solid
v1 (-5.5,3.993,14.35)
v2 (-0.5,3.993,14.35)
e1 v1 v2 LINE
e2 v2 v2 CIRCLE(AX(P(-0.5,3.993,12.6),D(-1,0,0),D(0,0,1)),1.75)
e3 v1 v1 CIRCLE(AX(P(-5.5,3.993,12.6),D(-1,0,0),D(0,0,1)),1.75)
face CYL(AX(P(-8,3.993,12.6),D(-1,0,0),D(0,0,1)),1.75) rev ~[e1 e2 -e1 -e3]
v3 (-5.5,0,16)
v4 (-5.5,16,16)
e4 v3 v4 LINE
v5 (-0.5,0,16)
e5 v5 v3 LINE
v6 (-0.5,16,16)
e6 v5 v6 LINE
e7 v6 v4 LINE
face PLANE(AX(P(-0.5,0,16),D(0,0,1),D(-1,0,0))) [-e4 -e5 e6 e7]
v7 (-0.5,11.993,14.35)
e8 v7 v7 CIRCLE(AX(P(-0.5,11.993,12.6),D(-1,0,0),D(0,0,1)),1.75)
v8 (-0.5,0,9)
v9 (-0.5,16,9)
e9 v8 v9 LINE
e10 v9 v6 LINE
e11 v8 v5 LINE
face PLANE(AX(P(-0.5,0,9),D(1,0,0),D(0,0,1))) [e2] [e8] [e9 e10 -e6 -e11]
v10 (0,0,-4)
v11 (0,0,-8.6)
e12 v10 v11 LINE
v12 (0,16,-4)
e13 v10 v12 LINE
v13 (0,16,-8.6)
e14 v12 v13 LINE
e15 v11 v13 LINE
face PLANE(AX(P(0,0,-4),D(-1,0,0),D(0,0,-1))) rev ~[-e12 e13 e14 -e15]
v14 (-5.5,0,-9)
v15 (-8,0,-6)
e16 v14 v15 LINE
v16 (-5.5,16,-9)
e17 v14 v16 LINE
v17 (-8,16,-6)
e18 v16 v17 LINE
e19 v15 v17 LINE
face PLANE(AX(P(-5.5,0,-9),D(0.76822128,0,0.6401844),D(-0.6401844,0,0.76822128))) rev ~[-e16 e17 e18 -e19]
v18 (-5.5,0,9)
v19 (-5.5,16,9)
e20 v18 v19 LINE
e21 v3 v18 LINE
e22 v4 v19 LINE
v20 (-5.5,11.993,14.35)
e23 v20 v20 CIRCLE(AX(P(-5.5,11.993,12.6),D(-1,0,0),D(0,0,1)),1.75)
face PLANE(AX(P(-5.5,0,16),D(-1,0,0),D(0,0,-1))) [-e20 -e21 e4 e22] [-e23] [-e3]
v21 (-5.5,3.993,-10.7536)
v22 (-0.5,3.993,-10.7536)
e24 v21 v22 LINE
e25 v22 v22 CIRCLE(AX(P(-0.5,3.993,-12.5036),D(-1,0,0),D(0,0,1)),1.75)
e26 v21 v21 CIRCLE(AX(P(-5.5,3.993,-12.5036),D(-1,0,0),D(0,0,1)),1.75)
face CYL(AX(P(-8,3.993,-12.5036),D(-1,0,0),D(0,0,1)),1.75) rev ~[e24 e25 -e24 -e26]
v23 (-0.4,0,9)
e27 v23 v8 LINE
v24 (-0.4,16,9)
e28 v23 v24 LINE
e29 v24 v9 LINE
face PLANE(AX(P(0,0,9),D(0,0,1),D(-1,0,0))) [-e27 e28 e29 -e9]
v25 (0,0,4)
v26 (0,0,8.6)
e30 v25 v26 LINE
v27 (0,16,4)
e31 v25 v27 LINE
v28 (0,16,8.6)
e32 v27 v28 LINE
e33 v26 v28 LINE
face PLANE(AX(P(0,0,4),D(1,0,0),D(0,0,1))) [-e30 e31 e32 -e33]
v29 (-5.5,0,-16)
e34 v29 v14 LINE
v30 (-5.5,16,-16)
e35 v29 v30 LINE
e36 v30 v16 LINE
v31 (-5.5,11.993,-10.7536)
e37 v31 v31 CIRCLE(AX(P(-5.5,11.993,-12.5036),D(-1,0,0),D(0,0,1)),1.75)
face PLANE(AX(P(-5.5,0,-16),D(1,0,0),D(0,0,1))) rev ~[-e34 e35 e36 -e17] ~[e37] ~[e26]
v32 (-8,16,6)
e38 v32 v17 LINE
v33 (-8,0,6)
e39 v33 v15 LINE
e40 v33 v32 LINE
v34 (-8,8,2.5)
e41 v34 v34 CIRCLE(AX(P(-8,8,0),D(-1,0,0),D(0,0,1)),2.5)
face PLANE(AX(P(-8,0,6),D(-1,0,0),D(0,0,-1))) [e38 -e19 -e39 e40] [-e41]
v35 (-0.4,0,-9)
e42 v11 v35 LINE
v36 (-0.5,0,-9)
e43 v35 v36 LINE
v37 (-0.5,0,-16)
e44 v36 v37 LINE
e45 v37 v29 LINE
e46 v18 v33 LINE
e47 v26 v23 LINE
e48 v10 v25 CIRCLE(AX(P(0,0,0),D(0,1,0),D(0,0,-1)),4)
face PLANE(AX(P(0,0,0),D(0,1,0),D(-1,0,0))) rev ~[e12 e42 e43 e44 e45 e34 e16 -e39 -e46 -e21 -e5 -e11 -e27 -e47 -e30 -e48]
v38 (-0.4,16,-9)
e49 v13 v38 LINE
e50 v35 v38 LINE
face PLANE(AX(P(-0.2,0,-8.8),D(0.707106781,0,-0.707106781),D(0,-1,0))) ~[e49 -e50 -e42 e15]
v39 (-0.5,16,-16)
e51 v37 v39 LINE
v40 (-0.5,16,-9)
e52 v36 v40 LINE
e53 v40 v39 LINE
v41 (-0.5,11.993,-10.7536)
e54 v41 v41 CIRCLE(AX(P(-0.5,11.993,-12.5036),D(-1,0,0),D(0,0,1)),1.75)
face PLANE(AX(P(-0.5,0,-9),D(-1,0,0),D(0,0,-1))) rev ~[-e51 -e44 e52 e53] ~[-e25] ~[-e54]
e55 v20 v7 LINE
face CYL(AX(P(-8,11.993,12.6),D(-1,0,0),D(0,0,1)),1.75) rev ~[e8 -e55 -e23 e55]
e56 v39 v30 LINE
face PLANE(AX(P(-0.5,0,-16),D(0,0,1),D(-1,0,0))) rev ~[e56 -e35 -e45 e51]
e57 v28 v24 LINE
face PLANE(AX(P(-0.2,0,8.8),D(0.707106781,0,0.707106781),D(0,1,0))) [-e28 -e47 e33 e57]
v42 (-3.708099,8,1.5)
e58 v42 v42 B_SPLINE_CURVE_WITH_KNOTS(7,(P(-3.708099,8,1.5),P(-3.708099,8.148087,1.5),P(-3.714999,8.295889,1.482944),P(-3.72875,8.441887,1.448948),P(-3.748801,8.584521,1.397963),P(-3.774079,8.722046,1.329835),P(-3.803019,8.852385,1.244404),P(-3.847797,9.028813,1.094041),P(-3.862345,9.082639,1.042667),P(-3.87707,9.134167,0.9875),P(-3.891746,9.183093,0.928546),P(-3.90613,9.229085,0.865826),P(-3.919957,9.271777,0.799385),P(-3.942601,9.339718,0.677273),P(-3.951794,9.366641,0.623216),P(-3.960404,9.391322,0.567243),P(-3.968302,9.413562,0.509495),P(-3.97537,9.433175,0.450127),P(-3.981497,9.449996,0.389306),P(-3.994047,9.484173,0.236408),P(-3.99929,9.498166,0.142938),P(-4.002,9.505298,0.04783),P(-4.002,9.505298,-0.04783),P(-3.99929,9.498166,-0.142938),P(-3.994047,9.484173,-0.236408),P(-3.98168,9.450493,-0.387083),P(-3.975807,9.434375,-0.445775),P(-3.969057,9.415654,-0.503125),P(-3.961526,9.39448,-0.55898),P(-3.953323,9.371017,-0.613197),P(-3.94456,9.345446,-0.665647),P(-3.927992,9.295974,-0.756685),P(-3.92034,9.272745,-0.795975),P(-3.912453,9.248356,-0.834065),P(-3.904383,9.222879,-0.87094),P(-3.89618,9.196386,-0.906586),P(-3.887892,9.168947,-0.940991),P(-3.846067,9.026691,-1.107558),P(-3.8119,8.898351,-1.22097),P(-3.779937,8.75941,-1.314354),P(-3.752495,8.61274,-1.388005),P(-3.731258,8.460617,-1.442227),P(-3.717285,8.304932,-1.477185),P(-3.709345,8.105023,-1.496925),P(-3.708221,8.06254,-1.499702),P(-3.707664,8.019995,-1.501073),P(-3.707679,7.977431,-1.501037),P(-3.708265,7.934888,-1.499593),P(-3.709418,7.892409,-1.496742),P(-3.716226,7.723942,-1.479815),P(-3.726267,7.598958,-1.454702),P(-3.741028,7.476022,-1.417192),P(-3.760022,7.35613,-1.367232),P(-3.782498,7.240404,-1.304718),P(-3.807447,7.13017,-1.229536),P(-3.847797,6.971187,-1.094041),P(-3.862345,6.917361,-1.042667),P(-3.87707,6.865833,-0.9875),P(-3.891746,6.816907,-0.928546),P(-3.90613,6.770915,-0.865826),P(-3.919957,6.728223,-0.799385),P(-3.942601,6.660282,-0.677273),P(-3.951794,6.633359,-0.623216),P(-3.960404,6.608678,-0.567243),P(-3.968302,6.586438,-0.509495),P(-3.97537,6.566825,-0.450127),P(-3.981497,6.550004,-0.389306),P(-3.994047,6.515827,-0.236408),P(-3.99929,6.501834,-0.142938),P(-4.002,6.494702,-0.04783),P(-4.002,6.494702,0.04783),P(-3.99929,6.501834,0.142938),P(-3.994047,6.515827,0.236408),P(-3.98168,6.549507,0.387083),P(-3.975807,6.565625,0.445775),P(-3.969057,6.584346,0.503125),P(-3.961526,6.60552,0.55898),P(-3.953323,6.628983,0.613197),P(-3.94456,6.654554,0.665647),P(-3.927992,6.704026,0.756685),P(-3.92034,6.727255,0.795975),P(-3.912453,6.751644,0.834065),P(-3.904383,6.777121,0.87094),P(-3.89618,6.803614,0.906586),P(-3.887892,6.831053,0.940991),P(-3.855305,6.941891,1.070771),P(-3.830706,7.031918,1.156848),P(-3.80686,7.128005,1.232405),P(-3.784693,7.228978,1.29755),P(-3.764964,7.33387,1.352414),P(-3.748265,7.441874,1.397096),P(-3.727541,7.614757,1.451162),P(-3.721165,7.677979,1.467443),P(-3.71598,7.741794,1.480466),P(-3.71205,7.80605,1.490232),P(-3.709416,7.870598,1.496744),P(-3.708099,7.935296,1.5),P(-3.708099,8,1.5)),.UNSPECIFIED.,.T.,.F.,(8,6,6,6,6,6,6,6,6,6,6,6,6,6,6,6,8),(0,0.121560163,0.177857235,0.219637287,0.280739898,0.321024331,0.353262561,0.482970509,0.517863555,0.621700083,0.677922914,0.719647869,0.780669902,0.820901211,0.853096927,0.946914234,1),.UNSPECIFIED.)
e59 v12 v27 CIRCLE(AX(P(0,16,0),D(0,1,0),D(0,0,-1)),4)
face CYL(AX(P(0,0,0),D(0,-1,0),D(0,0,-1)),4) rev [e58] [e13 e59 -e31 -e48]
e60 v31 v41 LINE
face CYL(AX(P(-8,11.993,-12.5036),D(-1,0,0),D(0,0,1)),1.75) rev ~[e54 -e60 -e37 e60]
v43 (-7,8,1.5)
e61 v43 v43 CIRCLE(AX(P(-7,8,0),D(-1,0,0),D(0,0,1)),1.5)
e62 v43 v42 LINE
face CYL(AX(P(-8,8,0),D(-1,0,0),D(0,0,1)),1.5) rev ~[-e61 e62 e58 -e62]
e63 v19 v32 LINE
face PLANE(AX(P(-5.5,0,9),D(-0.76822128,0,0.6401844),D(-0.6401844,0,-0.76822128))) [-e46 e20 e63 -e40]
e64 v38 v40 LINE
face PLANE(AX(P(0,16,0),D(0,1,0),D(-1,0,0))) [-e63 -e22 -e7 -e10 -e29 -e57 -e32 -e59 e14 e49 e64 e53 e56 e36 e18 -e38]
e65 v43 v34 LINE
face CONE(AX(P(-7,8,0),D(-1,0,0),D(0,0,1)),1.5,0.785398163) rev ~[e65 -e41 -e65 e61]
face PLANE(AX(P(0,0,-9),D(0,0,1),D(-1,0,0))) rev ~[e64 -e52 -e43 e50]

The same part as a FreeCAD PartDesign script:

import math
import FreeCAD as App
import Part
import Sketcher


def edges_at(feature, points):
    """Names of the edges that pass closest to the given points."""
    edges = feature.Shape.Edges
    near = lambda p: min(range(len(edges)), key=lambda i: edges[i].distToShape(Part.Vertex(*p))[0])
    return sorted({f"Edge{near(p) + 1}" for p in points})

doc = App.newDocument("Part")
body = doc.addObject("PartDesign::Body", "Body")

# Sketch on XZ plane
sketch1 = doc.addObject("Sketcher::SketchObject", "Sketch")
body.addObject(sketch1)
sketch1.AttachmentSupport = (doc.XZ_Plane, [""])
sketch1.MapMode = "FlatFace"
sketch1.addGeometry(Part.ArcOfCircle(Part.Circle(App.Vector(0, 0, 0), App.Vector(0, 0, 1), 4), math.radians(90), math.radians(270)), False)
sketch1.addGeometry(Part.LineSegment(App.Vector(0, -4, 0), App.Vector(0, -9, 0)), False)
sketch1.addGeometry(Part.LineSegment(App.Vector(0, -9, 0), App.Vector(-0.5, -9, 0)), False)
sketch1.addGeometry(Part.LineSegment(App.Vector(-0.5, -9, 0), App.Vector(-0.5, -16, 0)), False)
sketch1.addGeometry(Part.LineSegment(App.Vector(-0.5, -16, 0), App.Vector(-5.5, -16, 0)), False)
sketch1.addGeometry(Part.LineSegment(App.Vector(-5.5, -16, 0), App.Vector(-5.5, -9, 0)), False)
sketch1.addGeometry(Part.LineSegment(App.Vector(-5.5, -9, 0), App.Vector(-8, -6, 0)), False)
sketch1.addGeometry(Part.LineSegment(App.Vector(-8, -6, 0), App.Vector(-8, 6, 0)), False)
sketch1.addGeometry(Part.LineSegment(App.Vector(-8, 6, 0), App.Vector(-5.5, 9, 0)), False)
sketch1.addGeometry(Part.LineSegment(App.Vector(-5.5, 9, 0), App.Vector(-5.5, 16, 0)), False)
sketch1.addGeometry(Part.LineSegment(App.Vector(-5.5, 16, 0), App.Vector(-0.5, 16, 0)), False)
sketch1.addGeometry(Part.LineSegment(App.Vector(-0.5, 16, 0), App.Vector(-0.5, 9, 0)), False)
sketch1.addGeometry(Part.LineSegment(App.Vector(-0.5, 9, 0), App.Vector(0, 9, 0)), False)
sketch1.addGeometry(Part.LineSegment(App.Vector(0, 9, 0), App.Vector(0, 4, 0)), False)
sketch1.addConstraint(Sketcher.Constraint("Coincident", 0, 2, 1, 1))
sketch1.addConstraint(Sketcher.Constraint("Coincident", 1, 2, 2, 1))
sketch1.addConstraint(Sketcher.Constraint("Coincident", 2, 2, 3, 1))
sketch1.addConstraint(Sketcher.Constraint("Coincident", 3, 2, 4, 1))
sketch1.addConstraint(Sketcher.Constraint("Coincident", 4, 2, 5, 1))
sketch1.addConstraint(Sketcher.Constraint("Coincident", 5, 2, 6, 1))
sketch1.addConstraint(Sketcher.Constraint("Coincident", 6, 2, 7, 1))
sketch1.addConstraint(Sketcher.Constraint("Coincident", 7, 2, 8, 1))
sketch1.addConstraint(Sketcher.Constraint("Coincident", 8, 2, 9, 1))
sketch1.addConstraint(Sketcher.Constraint("Coincident", 9, 2, 10, 1))
sketch1.addConstraint(Sketcher.Constraint("Coincident", 10, 2, 11, 1))
sketch1.addConstraint(Sketcher.Constraint("Coincident", 11, 2, 12, 1))
sketch1.addConstraint(Sketcher.Constraint("Coincident", 12, 2, 13, 1))
sketch1.addConstraint(Sketcher.Constraint("Coincident", 13, 2, 0, 1))
sketch1.addConstraint(Sketcher.Constraint("Vertical", 1))
sketch1.addConstraint(Sketcher.Constraint("Horizontal", 2))
sketch1.addConstraint(Sketcher.Constraint("Vertical", 3))
sketch1.addConstraint(Sketcher.Constraint("Horizontal", 4))
sketch1.addConstraint(Sketcher.Constraint("Vertical", 5))
sketch1.addConstraint(Sketcher.Constraint("Vertical", 7))
sketch1.addConstraint(Sketcher.Constraint("Vertical", 9))
sketch1.addConstraint(Sketcher.Constraint("Horizontal", 10))
sketch1.addConstraint(Sketcher.Constraint("Vertical", 11))
sketch1.addConstraint(Sketcher.Constraint("Horizontal", 12))
sketch1.addConstraint(Sketcher.Constraint("Vertical", 13))
sketch1.addConstraint(Sketcher.Constraint("Coincident", 0, 3, -1, 1))
sketch1.addConstraint(Sketcher.Constraint("Symmetric", 1, 2, 12, 2, -1, 1))
sketch1.addConstraint(Sketcher.Constraint("Symmetric", 5, 2, 8, 2, -1))
sketch1.addConstraint(Sketcher.Constraint("Symmetric", 3, 2, 10, 2, -1))
sketch1.addConstraint(Sketcher.Constraint("PointOnObject", 0, 2, -2))
sketch1.addConstraint(Sketcher.Constraint("Horizontal", 2, 2, 5, 2))
sketch1.addConstraint(Sketcher.Constraint("Equal", 10, 1))
sketch1.addConstraint(Sketcher.Constraint("Equal", 6, 8))
sketch1.addConstraint(Sketcher.Constraint("Radius", 0, 4.0))
sketch1.addConstraint(Sketcher.Constraint("DistanceX", 4, 2, 4, 1, 5.0))
sketch1.addConstraint(Sketcher.Constraint("DistanceY", 3, 2, 3, 1, 7.0))
sketch1.addConstraint(Sketcher.Constraint("DistanceX", 2, 2, 2, 1, 0.5))
sketch1.addConstraint(Sketcher.Constraint("DistanceX", 6, 2, -1, 1, 8.0))
sketch1.addConstraint(Sketcher.Constraint("DistanceY", 6, 2, -1, 1, 6.0))
pad1 = doc.addObject("PartDesign::Pad", "Pad")
body.addObject(pad1)
pad1.Profile = sketch1
pad1.Length = 16
pad1.Reversed = True

# Sketch on YZ plane
sketch2 = doc.addObject("Sketcher::SketchObject", "Sketch001")
body.addObject(sketch2)
sketch2.AttachmentSupport = (doc.YZ_Plane, [""])
sketch2.MapMode = "FlatFace"
sketch2.AttachmentOffset = App.Placement(App.Vector(0, 0, -8), App.Rotation())
sketch2.addGeometry(Part.Circle(App.Vector(8, 0, 0), App.Vector(0, 0, 1), 1.5), False)
sketch2.addConstraint(Sketcher.Constraint("PointOnObject", 0, 3, -1))
sketch2.addConstraint(Sketcher.Constraint("Diameter", 0, 3.0))
sketch2.addConstraint(Sketcher.Constraint("DistanceX", -1, 1, 0, 3, 8.0))
pocket1 = doc.addObject("PartDesign::Pocket", "Pocket")
body.addObject(pocket1)
pocket1.Profile = sketch2
pocket1.Type = "ThroughAll"
pocket1.Reversed = True
doc.recompute()

chamfer = doc.addObject("PartDesign::Chamfer", "Chamfer")
body.addObject(chamfer)
chamfer.Base = (pocket1, edges_at(pocket1, [(-8, 8, -1.5)]))
chamfer.Size = 1
doc.recompute()

chamfer2 = doc.addObject("PartDesign::Chamfer", "Chamfer001")
body.addObject(chamfer2)
chamfer2.Base = (chamfer, edges_at(chamfer, [(0, 8, 9), (0, 8, -9)]))
chamfer2.Size = 0.4

# Sketch on YZ plane
sketch3 = doc.addObject("Sketcher::SketchObject", "Sketch002")
body.addObject(sketch3)
sketch3.AttachmentSupport = (doc.YZ_Plane, [""])
sketch3.MapMode = "FlatFace"
sketch3.AttachmentOffset = App.Placement(App.Vector(0, 0, -8), App.Rotation())
sketch3.addGeometry(Part.Circle(App.Vector(4, 12.6, 0), App.Vector(0, 0, 1), 1.8), False)
sketch3.addGeometry(Part.Circle(App.Vector(12, 12.6, 0), App.Vector(0, 0, 1), 1.8), False)
sketch3.addGeometry(Part.Circle(App.Vector(4, -12.5, 0), App.Vector(0, 0, 1), 1.8), False)
sketch3.addGeometry(Part.Circle(App.Vector(12, -12.5, 0), App.Vector(0, 0, 1), 1.8), False)
sketch3.addConstraint(Sketcher.Constraint("Equal", 0, 1))
sketch3.addConstraint(Sketcher.Constraint("Equal", 1, 2))
sketch3.addConstraint(Sketcher.Constraint("Equal", 2, 3))
sketch3.addConstraint(Sketcher.Constraint("Horizontal", 0, 3, 1, 3))
sketch3.addConstraint(Sketcher.Constraint("Horizontal", 2, 3, 3, 3))
sketch3.addConstraint(Sketcher.Constraint("Vertical", 0, 3, 2, 3))
sketch3.addConstraint(Sketcher.Constraint("Vertical", 1, 3, 3, 3))
sketch3.addConstraint(Sketcher.Constraint("Diameter", 0, 3.5))
sketch3.addConstraint(Sketcher.Constraint("DistanceX", 0, 3, 1, 3, 8.0))
sketch3.addConstraint(Sketcher.Constraint("DistanceY", -1, 1, 0, 3, 12.6))
sketch3.addConstraint(Sketcher.Constraint("DistanceX", -1, 1, 0, 3, 3.993))
sketch3.addConstraint(Sketcher.Constraint("DistanceY", 2, 3, -1, 1, 12.5036))
pocket2 = doc.addObject("PartDesign::Pocket", "Pocket001")
body.addObject(pocket2)
pocket2.Profile = sketch3
pocket2.Length = 15
pocket2.Reversed = True

doc.recompute()
